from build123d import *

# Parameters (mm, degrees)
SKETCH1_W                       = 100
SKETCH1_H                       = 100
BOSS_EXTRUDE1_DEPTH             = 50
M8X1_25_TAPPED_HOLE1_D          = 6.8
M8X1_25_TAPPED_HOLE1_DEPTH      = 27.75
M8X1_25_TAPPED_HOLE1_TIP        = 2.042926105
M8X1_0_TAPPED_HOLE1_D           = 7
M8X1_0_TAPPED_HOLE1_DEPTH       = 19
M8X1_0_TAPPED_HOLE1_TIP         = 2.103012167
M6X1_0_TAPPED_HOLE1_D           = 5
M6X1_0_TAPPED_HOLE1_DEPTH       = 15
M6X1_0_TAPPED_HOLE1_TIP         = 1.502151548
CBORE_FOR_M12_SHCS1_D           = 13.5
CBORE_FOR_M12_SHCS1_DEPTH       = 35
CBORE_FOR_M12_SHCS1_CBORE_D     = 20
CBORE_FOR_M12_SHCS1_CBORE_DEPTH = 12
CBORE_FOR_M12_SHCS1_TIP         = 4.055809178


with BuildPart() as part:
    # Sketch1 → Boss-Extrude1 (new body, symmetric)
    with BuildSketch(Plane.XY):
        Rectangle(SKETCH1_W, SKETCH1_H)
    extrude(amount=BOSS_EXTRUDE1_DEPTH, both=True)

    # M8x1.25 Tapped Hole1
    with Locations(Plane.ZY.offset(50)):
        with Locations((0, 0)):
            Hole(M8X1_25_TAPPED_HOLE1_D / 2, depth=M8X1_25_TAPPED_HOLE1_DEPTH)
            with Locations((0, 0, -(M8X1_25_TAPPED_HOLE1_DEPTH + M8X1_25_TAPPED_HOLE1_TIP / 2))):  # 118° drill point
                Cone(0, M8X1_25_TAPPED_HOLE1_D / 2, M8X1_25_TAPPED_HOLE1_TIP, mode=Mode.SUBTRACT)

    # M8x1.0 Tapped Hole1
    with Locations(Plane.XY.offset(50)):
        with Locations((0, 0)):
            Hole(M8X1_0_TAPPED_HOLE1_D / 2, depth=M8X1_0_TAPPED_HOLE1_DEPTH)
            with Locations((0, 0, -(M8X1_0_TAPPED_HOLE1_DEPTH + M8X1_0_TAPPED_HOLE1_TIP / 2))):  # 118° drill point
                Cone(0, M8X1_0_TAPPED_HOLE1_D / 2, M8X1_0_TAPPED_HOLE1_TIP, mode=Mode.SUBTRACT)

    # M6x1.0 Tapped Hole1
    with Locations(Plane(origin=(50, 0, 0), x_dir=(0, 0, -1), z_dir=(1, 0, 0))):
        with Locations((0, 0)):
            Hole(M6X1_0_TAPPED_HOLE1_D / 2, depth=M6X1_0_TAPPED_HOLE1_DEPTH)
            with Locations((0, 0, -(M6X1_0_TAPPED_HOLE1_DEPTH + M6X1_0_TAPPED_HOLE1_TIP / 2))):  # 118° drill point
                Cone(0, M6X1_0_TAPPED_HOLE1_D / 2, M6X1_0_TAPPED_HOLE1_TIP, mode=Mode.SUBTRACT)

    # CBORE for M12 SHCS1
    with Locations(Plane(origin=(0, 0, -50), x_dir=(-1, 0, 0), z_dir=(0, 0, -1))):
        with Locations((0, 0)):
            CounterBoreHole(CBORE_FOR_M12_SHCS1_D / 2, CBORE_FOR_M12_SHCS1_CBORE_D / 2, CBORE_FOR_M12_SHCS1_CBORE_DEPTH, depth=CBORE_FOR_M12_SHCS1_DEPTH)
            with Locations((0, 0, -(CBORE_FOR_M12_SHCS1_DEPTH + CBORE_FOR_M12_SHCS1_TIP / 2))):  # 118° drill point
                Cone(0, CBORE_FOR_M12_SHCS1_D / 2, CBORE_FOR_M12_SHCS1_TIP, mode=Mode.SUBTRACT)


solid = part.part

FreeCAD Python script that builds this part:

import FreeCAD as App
import Part
import Sketcher
from FreeCAD import Vector


def add_polygon(sketch, points):
    """Adds a closed chain of lines whose ends are joined by coincident constraints."""
    first, n = sketch.GeometryCount, len(points)
    for a, b in zip(points, points[1:] + points[:1]):
        sketch.addGeometry(Part.LineSegment(App.Vector(*a, 0), App.Vector(*b, 0)), False)
    for i in range(n):
        sketch.addConstraint(Sketcher.Constraint("Coincident", first + i, 2, first + (i + 1) % n, 1))

doc = App.newDocument("Part")
body = doc.addObject("PartDesign::Body", "Body")

# Sketch on XY plane
sketch1 = body.newObject("Sketcher::SketchObject", "Sketch")
sketch1.AttachmentSupport = (doc.getObject("XY_Plane"), [""])
sketch1.MapMode = "FlatFace"
add_polygon(sketch1, [(-50, 50), (-50, -50), (50, -50), (50, 50)])  # lines 0-3
sketch1.addConstraint(Sketcher.Constraint("Vertical", 0))
sketch1.addConstraint(Sketcher.Constraint("Horizontal", 1))
sketch1.addConstraint(Sketcher.Constraint("Vertical", 2))
sketch1.addConstraint(Sketcher.Constraint("Horizontal", 3))
sketch1.addConstraint(Sketcher.Constraint("Symmetric", 0, 2, 2, 2, -1, 1))
sketch1.addConstraint(Sketcher.Constraint("Equal", 3, 0))
sketch1.addConstraint(Sketcher.Constraint("DistanceX", 1, 1, 1, 2, 100.0))
pad1 = body.newObject("PartDesign::Pad", "Pad")
pad1.Profile = sketch1
pad1.Length = 100
pad1.Midplane = True

# Sketch on YZ plane
sketch2 = body.newObject("Sketcher::SketchObject", "Sketch001")
sketch2.AttachmentSupport = (doc.getObject("YZ_Plane"), [""])
sketch2.MapMode = "FlatFace"
sketch2.AttachmentOffset = App.Placement(Vector(0, 0, -50), App.Rotation())
sketch2.addGeometry(Part.Circle(Vector(0, 0, 0), Vector(0, 0, 1), 3.4), False)
sketch2.addConstraint(Sketcher.Constraint("Coincident", 0, 3, -1, 1))
sketch2.addConstraint(Sketcher.Constraint("Diameter", 0, 6.8))
doc.recompute()
hole = body.newObject("PartDesign::Hole", "Hole")
hole.Profile = sketch2
hole.ThreadType = "None"
hole.Diameter = 6.8
hole.DepthType = "Dimension"
hole.Depth = 27.75
hole.DrillPoint = "Angled"
hole.DrillPointAngle = 118
hole.Reversed = True

# Sketch on XY plane
sketch3 = body.newObject("Sketcher::SketchObject", "Sketch002")
sketch3.AttachmentSupport = (doc.getObject("XY_Plane"), [""])
sketch3.MapMode = "FlatFace"
sketch3.AttachmentOffset = App.Placement(Vector(0, 0, 50), App.Rotation())
sketch3.addGeometry(Part.Circle(Vector(0, 0, 0), Vector(0, 0, 1), 3.5), False)
sketch3.addConstraint(Sketcher.Constraint("Coincident", 0, 3, -1, 1))
sketch3.addConstraint(Sketcher.Constraint("Diameter", 0, 7.0))
doc.recompute()
hole2 = body.newObject("PartDesign::Hole", "Hole001")
hole2.Profile = sketch3
hole2.ThreadType = "None"
hole2.Diameter = 7
hole2.DepthType = "Dimension"
hole2.Depth = 19
hole2.DrillPoint = "Angled"
hole2.DrillPointAngle = 118

# Sketch on YZ plane
sketch4 = body.newObject("Sketcher::SketchObject", "Sketch003")
sketch4.AttachmentSupport = (doc.getObject("YZ_Plane"), [""])
sketch4.MapMode = "FlatFace"
sketch4.AttachmentOffset = App.Placement(Vector(0, 0, 50), App.Rotation())
sketch4.addGeometry(Part.Circle(Vector(0, 0, 0), Vector(0, 0, 1), 2.5), False)
sketch4.addConstraint(Sketcher.Constraint("Coincident", 0, 3, -1, 1))
sketch4.addConstraint(Sketcher.Constraint("Diameter", 0, 5.0))
doc.recompute()
hole3 = body.newObject("PartDesign::Hole", "Hole002")
hole3.Profile = sketch4
hole3.ThreadType = "None"
hole3.Diameter = 5
hole3.DepthType = "Dimension"
hole3.Depth = 15
hole3.DrillPoint = "Angled"
hole3.DrillPointAngle = 118

# Sketch on XY plane
sketch5 = body.newObject("Sketcher::SketchObject", "Sketch004")
sketch5.AttachmentSupport = (doc.getObject("XY_Plane"), [""])
sketch5.MapMode = "FlatFace"
sketch5.AttachmentOffset = App.Placement(Vector(0, 0, -50), App.Rotation())
sketch5.addGeometry(Part.Circle(Vector(0, 0, 0), Vector(0, 0, 1), 6.75), False)
sketch5.addConstraint(Sketcher.Constraint("Coincident", 0, 3, -1, 1))
sketch5.addConstraint(Sketcher.Constraint("Diameter", 0, 13.5))
doc.recompute()
hole4 = body.newObject("PartDesign::Hole", "Hole003")
hole4.Profile = sketch5
hole4.ThreadType = "None"
hole4.Diameter = 13.5
hole4.DepthType = "Dimension"
hole4.Depth = 35
hole4.DrillPoint = "Angled"
hole4.DrillPointAngle = 118
hole4.HoleCutType = "Counterbore"
hole4.HoleCutDiameter = 20
hole4.HoleCutDepth = 12
hole4.Reversed = True

doc.recompute()
